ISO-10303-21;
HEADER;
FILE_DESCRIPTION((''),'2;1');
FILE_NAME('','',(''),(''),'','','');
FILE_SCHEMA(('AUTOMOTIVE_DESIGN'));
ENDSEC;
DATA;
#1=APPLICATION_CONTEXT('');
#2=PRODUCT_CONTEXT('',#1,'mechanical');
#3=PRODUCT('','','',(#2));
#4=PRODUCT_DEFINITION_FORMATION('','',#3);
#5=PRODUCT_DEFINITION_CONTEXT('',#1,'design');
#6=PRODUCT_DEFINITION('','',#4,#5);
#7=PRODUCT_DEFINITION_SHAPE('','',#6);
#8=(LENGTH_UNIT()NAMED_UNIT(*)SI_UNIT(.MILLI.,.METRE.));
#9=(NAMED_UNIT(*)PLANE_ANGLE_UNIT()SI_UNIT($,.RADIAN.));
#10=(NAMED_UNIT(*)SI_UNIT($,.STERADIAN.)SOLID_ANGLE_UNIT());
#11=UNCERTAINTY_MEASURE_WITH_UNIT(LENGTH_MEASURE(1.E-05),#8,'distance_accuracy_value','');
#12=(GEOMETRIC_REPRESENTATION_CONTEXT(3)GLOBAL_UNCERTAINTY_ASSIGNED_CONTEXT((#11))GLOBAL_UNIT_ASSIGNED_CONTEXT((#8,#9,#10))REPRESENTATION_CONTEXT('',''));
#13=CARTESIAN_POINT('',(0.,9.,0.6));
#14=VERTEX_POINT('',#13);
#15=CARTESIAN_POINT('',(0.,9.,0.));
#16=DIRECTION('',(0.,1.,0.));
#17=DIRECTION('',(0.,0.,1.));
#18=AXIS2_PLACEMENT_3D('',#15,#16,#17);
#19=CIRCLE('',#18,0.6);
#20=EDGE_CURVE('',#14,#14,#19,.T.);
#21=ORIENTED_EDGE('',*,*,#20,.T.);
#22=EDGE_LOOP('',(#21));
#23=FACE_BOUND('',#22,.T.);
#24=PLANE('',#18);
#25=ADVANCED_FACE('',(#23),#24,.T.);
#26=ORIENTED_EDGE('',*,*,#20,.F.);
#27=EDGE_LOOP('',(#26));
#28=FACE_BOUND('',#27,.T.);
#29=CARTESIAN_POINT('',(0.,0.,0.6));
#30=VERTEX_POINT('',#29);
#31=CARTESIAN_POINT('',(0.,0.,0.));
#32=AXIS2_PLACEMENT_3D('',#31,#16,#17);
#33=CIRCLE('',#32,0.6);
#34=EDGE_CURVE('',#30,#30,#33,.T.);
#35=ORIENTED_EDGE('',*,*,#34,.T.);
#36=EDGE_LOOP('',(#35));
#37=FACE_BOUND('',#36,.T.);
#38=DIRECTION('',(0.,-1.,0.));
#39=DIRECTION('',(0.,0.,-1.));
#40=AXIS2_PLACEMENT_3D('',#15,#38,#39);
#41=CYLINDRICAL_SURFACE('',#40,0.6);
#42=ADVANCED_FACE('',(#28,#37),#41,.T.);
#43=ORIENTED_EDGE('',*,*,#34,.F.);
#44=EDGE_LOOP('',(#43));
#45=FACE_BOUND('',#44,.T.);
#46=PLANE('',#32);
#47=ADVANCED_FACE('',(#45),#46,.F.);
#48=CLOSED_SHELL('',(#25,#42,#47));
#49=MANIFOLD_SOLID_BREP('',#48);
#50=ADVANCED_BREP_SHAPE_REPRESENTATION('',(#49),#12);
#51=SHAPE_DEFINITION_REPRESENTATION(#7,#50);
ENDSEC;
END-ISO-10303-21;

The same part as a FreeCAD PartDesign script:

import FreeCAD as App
import Part
import Sketcher

doc = App.newDocument("Part")
body = doc.addObject("PartDesign::Body", "Body")

# Sketch on XZ plane
sketch1 = body.newObject("Sketcher::SketchObject", "Sketch")
sketch1.AttachmentSupport = (doc.getObject("XZ_Plane"), [""])
sketch1.MapMode = "FlatFace"
sketch1.addGeometry(Part.Circle(App.Vector(0, 0, 0), App.Vector(0, 0, 1), 0.6), False)
sketch1.addConstraint([
    Sketcher.Constraint("Coincident", 0, 3, -1, 1),
    Sketcher.Constraint("Diameter", 0, 1.2),
])
pad1 = body.newObject("PartDesign::Pad", "Pad")
pad1.Profile = sketch1
pad1.Length = 9
pad1.Reversed = True

doc.recompute()
